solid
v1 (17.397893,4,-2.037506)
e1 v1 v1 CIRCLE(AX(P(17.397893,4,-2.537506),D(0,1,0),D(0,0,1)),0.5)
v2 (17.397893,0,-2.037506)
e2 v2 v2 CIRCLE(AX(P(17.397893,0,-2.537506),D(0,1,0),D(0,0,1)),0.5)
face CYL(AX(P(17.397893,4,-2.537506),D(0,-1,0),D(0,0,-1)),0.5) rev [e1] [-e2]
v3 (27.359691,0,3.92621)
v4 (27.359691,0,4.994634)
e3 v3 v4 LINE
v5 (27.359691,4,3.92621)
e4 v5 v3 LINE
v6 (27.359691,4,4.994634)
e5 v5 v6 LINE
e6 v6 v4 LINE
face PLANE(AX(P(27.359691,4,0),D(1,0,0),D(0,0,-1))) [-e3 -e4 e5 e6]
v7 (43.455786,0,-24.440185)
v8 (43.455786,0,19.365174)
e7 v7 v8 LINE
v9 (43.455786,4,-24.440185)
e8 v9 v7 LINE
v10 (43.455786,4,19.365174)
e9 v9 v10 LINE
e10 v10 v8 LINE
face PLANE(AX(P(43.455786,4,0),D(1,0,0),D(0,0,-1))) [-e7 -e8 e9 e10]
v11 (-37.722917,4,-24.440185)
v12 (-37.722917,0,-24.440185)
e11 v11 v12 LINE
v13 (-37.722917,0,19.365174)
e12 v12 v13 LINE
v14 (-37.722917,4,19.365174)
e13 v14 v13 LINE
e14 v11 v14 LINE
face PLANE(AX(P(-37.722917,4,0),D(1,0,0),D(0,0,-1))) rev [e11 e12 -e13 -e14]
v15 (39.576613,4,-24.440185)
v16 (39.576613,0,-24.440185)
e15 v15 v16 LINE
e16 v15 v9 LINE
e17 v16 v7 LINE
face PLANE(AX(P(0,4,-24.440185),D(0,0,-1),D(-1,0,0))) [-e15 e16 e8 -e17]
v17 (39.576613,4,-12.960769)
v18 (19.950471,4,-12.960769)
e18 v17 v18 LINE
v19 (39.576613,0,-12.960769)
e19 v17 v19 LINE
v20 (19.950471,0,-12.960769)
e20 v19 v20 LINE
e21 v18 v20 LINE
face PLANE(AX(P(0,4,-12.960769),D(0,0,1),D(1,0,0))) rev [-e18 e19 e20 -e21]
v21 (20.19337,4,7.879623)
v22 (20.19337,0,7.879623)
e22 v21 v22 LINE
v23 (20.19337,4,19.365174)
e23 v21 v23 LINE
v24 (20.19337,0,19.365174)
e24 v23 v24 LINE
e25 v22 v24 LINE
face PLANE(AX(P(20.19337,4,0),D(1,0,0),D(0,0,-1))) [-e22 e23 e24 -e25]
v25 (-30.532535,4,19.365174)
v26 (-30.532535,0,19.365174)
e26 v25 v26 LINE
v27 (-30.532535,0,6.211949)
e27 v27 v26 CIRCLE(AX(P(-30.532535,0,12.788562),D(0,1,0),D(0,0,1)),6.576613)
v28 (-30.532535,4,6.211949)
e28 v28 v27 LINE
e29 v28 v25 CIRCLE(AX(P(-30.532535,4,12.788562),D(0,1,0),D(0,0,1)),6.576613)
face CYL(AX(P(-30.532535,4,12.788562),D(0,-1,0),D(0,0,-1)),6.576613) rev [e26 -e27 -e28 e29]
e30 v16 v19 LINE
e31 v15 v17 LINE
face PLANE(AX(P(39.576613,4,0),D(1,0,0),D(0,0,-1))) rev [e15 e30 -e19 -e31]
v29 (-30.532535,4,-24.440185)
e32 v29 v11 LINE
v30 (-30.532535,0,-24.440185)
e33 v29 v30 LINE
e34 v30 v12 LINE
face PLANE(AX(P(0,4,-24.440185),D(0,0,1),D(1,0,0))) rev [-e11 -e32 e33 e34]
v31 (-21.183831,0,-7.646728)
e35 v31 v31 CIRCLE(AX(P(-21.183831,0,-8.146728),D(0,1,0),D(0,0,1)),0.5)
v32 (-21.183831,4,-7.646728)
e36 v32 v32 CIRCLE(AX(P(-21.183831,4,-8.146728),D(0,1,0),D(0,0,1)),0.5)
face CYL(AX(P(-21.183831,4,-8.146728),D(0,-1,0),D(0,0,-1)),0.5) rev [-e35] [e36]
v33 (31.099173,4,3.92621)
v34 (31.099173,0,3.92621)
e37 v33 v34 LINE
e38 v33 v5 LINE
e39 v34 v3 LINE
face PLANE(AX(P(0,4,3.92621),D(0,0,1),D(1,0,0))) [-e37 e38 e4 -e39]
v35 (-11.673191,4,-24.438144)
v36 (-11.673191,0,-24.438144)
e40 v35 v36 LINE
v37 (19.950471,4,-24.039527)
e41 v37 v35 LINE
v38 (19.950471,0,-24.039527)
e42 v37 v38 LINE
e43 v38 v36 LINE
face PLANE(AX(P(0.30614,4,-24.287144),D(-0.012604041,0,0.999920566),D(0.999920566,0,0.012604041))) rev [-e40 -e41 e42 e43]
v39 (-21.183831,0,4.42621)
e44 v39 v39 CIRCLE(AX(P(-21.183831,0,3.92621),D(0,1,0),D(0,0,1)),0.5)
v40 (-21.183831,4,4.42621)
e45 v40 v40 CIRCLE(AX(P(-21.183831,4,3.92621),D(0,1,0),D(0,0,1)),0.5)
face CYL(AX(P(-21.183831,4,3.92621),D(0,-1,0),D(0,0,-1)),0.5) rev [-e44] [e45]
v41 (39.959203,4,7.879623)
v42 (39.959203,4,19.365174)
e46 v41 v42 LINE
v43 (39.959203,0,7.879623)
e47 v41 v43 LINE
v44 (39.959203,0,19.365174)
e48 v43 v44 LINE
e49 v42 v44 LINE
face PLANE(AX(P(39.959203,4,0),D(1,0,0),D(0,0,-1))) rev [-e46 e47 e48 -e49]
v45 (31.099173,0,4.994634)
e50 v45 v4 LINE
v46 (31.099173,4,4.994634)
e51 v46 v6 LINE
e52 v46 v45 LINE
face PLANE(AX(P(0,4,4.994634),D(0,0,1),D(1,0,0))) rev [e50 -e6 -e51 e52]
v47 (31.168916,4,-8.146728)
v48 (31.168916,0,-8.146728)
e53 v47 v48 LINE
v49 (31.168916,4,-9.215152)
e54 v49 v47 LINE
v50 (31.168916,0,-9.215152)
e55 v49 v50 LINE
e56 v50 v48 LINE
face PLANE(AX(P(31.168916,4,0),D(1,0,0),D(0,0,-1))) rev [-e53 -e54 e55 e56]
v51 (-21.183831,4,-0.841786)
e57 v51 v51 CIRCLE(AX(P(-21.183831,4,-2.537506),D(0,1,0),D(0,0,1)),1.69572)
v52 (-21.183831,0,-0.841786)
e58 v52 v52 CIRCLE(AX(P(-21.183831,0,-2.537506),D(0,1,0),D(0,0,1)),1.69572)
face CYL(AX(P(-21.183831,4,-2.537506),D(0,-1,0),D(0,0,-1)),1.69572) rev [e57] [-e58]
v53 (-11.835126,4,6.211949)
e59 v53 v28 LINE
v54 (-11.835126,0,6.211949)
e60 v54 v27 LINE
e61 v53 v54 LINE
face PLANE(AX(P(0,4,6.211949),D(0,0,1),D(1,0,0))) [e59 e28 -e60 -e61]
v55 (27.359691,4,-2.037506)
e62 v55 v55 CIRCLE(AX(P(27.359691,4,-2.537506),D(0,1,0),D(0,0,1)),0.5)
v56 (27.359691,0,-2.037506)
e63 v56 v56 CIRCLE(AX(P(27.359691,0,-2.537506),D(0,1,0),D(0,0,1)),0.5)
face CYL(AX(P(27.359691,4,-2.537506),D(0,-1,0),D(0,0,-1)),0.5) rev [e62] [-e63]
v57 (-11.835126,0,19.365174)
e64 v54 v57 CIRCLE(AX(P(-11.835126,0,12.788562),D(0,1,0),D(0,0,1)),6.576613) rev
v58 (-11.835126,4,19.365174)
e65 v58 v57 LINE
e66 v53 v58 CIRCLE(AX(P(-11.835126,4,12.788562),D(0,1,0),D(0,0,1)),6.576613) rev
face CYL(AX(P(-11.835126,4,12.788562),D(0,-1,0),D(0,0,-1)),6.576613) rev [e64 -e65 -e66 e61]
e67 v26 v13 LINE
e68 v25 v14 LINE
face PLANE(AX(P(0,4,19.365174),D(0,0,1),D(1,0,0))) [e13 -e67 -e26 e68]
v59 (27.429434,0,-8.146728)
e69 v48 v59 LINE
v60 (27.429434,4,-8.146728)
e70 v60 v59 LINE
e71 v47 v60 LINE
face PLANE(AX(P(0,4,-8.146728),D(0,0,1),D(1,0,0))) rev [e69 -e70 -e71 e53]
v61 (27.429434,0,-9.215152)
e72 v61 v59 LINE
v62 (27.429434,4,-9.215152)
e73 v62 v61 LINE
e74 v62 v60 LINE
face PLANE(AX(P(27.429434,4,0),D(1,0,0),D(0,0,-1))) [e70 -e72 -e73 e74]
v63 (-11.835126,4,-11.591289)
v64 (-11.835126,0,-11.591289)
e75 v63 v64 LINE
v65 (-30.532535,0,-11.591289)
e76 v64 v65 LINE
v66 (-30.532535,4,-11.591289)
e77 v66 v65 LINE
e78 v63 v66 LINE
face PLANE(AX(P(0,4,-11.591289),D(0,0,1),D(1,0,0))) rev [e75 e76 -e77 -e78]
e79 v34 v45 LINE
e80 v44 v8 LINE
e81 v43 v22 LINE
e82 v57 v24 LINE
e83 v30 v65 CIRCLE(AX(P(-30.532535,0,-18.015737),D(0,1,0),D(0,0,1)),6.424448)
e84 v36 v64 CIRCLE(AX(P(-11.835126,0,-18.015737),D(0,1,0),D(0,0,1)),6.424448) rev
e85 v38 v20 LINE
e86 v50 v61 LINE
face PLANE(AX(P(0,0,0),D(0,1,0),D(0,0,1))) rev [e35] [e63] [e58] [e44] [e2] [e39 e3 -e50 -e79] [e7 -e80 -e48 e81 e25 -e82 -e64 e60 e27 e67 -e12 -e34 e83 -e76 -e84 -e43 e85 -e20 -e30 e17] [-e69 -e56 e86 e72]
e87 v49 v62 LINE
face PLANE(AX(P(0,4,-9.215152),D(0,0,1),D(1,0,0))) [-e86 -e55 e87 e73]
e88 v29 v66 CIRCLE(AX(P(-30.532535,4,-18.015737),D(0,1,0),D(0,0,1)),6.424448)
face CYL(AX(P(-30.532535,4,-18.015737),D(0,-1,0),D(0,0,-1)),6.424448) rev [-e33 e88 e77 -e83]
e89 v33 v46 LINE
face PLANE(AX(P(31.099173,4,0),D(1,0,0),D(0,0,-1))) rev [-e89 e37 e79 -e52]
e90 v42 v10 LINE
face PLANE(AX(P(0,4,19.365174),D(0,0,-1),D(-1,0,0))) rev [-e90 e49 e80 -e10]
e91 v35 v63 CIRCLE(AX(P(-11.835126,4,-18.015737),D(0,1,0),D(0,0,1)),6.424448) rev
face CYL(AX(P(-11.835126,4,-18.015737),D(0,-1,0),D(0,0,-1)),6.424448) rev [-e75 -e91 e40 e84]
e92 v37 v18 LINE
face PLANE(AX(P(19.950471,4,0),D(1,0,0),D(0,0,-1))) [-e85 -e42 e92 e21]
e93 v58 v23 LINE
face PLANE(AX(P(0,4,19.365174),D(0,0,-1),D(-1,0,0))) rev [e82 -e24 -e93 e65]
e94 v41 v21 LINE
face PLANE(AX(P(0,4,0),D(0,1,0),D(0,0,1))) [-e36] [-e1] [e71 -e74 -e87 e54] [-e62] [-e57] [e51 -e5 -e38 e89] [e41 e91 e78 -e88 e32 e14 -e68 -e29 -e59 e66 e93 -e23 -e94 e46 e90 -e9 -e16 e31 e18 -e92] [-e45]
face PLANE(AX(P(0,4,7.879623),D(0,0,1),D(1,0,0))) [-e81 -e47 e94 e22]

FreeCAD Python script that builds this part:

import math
import FreeCAD as App
import Part
import Sketcher

V = App.Vector

doc = App.newDocument("Part")
body = doc.addObject("PartDesign::Body", "Body")

# Sketch on XZ plane
sketch1 = body.newObject("Sketcher::SketchObject", "Sketch")
sketch1.AttachmentSupport = (doc.getObject("XZ_Plane"), [""])
sketch1.MapMode = "FlatFace"
sketch1.addGeometry([
    Part.LineSegment(V(43.455786, 19.365174, 0), V(43.455786, -24.440185, 0)),  # 0
    Part.LineSegment(V(43.455786, -24.440185, 0), V(39.576613, -24.440185, 0)),  # 1
    Part.LineSegment(V(39.576613, -24.440185, 0), V(39.576613, -12.960769, 0)),  # 2
    Part.LineSegment(V(39.576613, -12.960769, 0), V(19.950471, -12.960769, 0)),  # 3
    Part.LineSegment(V(19.950471, -12.960769, 0), V(19.950471, -24.039527, 0)),  # 4
    Part.LineSegment(V(19.950471, -24.039527, 0), V(-11.673191, -24.438144, 0)),  # 5
    Part.ArcOfCircle(Part.Circle(V(-11.835126, -18.015737, 0), V(0, 0, 1), 6.424448), math.radians(-88.555645), math.radians(90)),  # 6
    Part.LineSegment(V(-11.835126, -11.591289, 0), V(-30.532535, -11.591289, 0)),  # 7
    Part.ArcOfCircle(Part.Circle(V(-30.532535, -18.015737, 0), V(0, 0, 1), 6.424448), math.radians(90), math.radians(270)),  # 8
    Part.LineSegment(V(-30.532535, -24.440185, 0), V(-37.722917, -24.440185, 0)),  # 9
    Part.LineSegment(V(-37.722917, -24.440185, 0), V(-37.722917, 19.365174, 0)),  # 10
    Part.LineSegment(V(-37.722917, 19.365174, 0), V(-30.532535, 19.365174, 0)),  # 11
    Part.ArcOfCircle(Part.Circle(V(-30.532535, 12.788562, 0), V(0, 0, 1), 6.576613), math.radians(90), math.radians(270)),  # 12
    Part.LineSegment(V(-30.532535, 6.211949, 0), V(-11.835126, 6.211949, 0)),  # 13
    Part.ArcOfCircle(Part.Circle(V(-11.835126, 12.788562, 0), V(0, 0, 1), 6.576613), math.radians(-90), math.radians(90)),  # 14
    Part.LineSegment(V(-11.835126, 19.365174, 0), V(20.19337, 19.365174, 0)),  # 15
    Part.LineSegment(V(20.19337, 19.365174, 0), V(20.19337, 7.879623, 0)),  # 16
    Part.LineSegment(V(20.19337, 7.879623, 0), V(39.959203, 7.879623, 0)),  # 17
    Part.LineSegment(V(39.959203, 7.879623, 0), V(39.959203, 19.365174, 0)),  # 18
    Part.LineSegment(V(39.959203, 19.365174, 0), V(43.455786, 19.365174, 0)),  # 19
    Part.Circle(V(-21.183831, 3.92621, 0), V(0, 0, 1), 0.5),  # 20
    Part.LineSegment(V(31.099173, 4.994634, 0), V(27.359691, 4.994634, 0)),  # 21
    Part.LineSegment(V(27.359691, 4.994634, 0), V(27.359691, 3.92621, 0)),  # 22
    Part.LineSegment(V(27.359691, 3.92621, 0), V(31.099173, 3.92621, 0)),  # 23
    Part.LineSegment(V(31.099173, 3.92621, 0), V(31.099173, 4.994634, 0)),  # 24
    Part.Circle(V(-21.183831, -2.537506, 0), V(0, 0, 1), 1.69572),  # 25
    Part.Circle(V(-21.183831, -8.146728, 0), V(0, 0, 1), 0.5),  # 26
    Part.Circle(V(17.397893, -2.537506, 0), V(0, 0, 1), 0.5),  # 27
    Part.Circle(V(27.359691, -2.537506, 0), V(0, 0, 1), 0.5),  # 28
    Part.LineSegment(V(31.168916, -8.146728, 0), V(27.429434, -8.146728, 0)),  # 29
    Part.LineSegment(V(27.429434, -8.146728, 0), V(27.429434, -9.215152, 0)),  # 30
    Part.LineSegment(V(27.429434, -9.215152, 0), V(31.168916, -9.215152, 0)),  # 31
    Part.LineSegment(V(31.168916, -9.215152, 0), V(31.168916, -8.146728, 0)),  # 32
], False)
sketch1.addConstraint([
    Sketcher.Constraint("Coincident", 0, 2, 1, 1),
    Sketcher.Constraint("Coincident", 1, 2, 2, 1),
    Sketcher.Constraint("Coincident", 2, 2, 3, 1),
    Sketcher.Constraint("Coincident", 3, 2, 4, 1),
    Sketcher.Constraint("Coincident", 4, 2, 5, 1),
    Sketcher.Constraint("Coincident", 5, 2, 6, 1),
    Sketcher.Constraint("Tangent", 6, 2, 7, 1),
    Sketcher.Constraint("Tangent", 7, 2, 8, 1),
    Sketcher.Constraint("Tangent", 8, 2, 9, 1),
    Sketcher.Constraint("Coincident", 9, 2, 10, 1),
    Sketcher.Constraint("Coincident", 10, 2, 11, 1),
    Sketcher.Constraint("Tangent", 11, 2, 12, 1),
    Sketcher.Constraint("Tangent", 12, 2, 13, 1),
    Sketcher.Constraint("Tangent", 13, 2, 14, 1),
    Sketcher.Constraint("Tangent", 14, 2, 15, 1),
    Sketcher.Constraint("Coincident", 15, 2, 16, 1),
    Sketcher.Constraint("Coincident", 16, 2, 17, 1),
    Sketcher.Constraint("Coincident", 17, 2, 18, 1),
    Sketcher.Constraint("Coincident", 18, 2, 19, 1),
    Sketcher.Constraint("Coincident", 19, 2, 0, 1),
    Sketcher.Constraint("Coincident", 21, 2, 22, 1),
    Sketcher.Constraint("Coincident", 22, 2, 23, 1),
    Sketcher.Constraint("Coincident", 23, 2, 24, 1),
    Sketcher.Constraint("Coincident", 24, 2, 21, 1),
    Sketcher.Constraint("Coincident", 29, 2, 30, 1),
    Sketcher.Constraint("Coincident", 30, 2, 31, 1),
    Sketcher.Constraint("Coincident", 31, 2, 32, 1),
    Sketcher.Constraint("Coincident", 32, 2, 29, 1),
    Sketcher.Constraint("Vertical", 0),
    Sketcher.Constraint("Horizontal", 1),
    Sketcher.Constraint("Vertical", 2),
    Sketcher.Constraint("Horizontal", 3),
    Sketcher.Constraint("Vertical", 4),
    Sketcher.Constraint("Horizontal", 7),
    Sketcher.Constraint("Horizontal", 9),
    Sketcher.Constraint("Vertical", 10),
    Sketcher.Constraint("Horizontal", 11),
    Sketcher.Constraint("Horizontal", 13),
    Sketcher.Constraint("Horizontal", 15),
    Sketcher.Constraint("Vertical", 16),
    Sketcher.Constraint("Horizontal", 17),
    Sketcher.Constraint("Vertical", 18),
    Sketcher.Constraint("Horizontal", 19),
    Sketcher.Constraint("Horizontal", 21),
    Sketcher.Constraint("Vertical", 22),
    Sketcher.Constraint("Horizontal", 23),
    Sketcher.Constraint("Vertical", 24),
    Sketcher.Constraint("Horizontal", 29),
    Sketcher.Constraint("Vertical", 30),
    Sketcher.Constraint("Horizontal", 31),
    Sketcher.Constraint("Vertical", 32),
    Sketcher.Constraint("Equal", 6, 8),
    Sketcher.Constraint("Equal", 12, 14),
    Sketcher.Constraint("Equal", 20, 26),
    Sketcher.Constraint("Equal", 26, 27),
    Sketcher.Constraint("Equal", 27, 28),
    Sketcher.Constraint("Horizontal", 25, 3, 27, 3),
    Sketcher.Constraint("Horizontal", 27, 3, 28, 3),
    Sketcher.Constraint("Horizontal", 1, 2, 8, 2),
    Sketcher.Constraint("Horizontal", 15, 2, 18, 2),
    Sketcher.Constraint("Horizontal", 20, 3, 22, 2),
    Sketcher.Constraint("Horizontal", 26, 3, 29, 2),
    Sketcher.Constraint("Vertical", 8, 3, 12, 3),
    Sketcher.Constraint("Vertical", 6, 3, 14, 3),
    Sketcher.Constraint("Vertical", 20, 3, 25, 3),
    Sketcher.Constraint("Vertical", 25, 3, 26, 3),
    Sketcher.Constraint("Vertical", 28, 3, 21, 2),
    Sketcher.Constraint("Equal", 23, 29),
    Sketcher.Constraint("Equal", 24, 30),
    Sketcher.Constraint("Diameter", 20, 1.0),
    Sketcher.Constraint("Diameter", 25, 3.39144),
    Sketcher.Constraint("Radius", 6, 6.424448),
    Sketcher.Constraint("Radius", 12, 6.576613),
    Sketcher.Constraint("DistanceX", 7, 2, 7, 1, 18.69741),
    Sketcher.Constraint("DistanceX", 9, 2, 9, 1, 7.190381),
    Sketcher.Constraint("DistanceX", 21, 2, 21, 1, 3.739482),
    Sketcher.Constraint("DistanceY", 0, 2, 0, 1, 43.80536),
    Sketcher.Constraint("DistanceY", 16, 2, 16, 1, 11.485552),
    Sketcher.Constraint("DistanceX", 27, 3, 28, 3, 9.961798),
    Sketcher.Constraint("DistanceY", 6, 2, 20, 3, 15.517499),
    Sketcher.Constraint("DistanceX", 3, 2, 15, 2, 0.2429),
    Sketcher.Constraint("DistanceX", 1, 2, 1, 1, 3.879173),
    Sketcher.Constraint("DistanceX", 3, 2, 3, 1, 19.626142),
    Sketcher.Constraint("DistanceX", 15, 1, 15, 2, 32.028496),
    Sketcher.Constraint("DistanceX", 17, 1, 17, 2, 19.765833),
    Sketcher.Constraint("DistanceY", 2, 1, 2, 2, 11.479417),
    Sketcher.Constraint("DistanceY", 4, 2, 4, 1, 11.078758),
    Sketcher.Constraint("DistanceY", 22, 2, 22, 1, 1.068423),
    Sketcher.Constraint("DistanceY", -1, 1, 12, 3, 12.788562),
    Sketcher.Constraint("DistanceX", 20, 3, -1, 1, 21.183831),
    Sketcher.Constraint("DistanceY", 26, 3, -1, 1, 8.146728),
    Sketcher.Constraint("DistanceX", -1, 1, 28, 3, 27.359691),
    Sketcher.Constraint("DistanceX", -1, 1, 3, 2, 19.950471),
    Sketcher.Constraint("DistanceX", 5, 2, -1, 1, 11.673191),
    Sketcher.Constraint("DistanceY", 6, 3, 25, 3, 15.478232),
    Sketcher.Constraint("DistanceX", 27, 3, 29, 2, 10.031542),
])
pad1 = body.newObject("PartDesign::Pad", "Pad")
pad1.Profile = sketch1
pad1.Length = 4
pad1.Reversed = True

doc.recompute()
